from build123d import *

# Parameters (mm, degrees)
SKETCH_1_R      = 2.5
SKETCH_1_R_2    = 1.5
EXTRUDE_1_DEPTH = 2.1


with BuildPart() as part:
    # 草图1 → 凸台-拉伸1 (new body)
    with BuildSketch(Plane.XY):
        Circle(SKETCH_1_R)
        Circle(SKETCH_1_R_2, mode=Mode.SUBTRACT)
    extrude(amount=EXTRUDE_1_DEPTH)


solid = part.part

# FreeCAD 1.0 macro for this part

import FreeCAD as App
import Part
import Sketcher

V = App.Vector

doc = App.newDocument("Part")
body = doc.addObject("PartDesign::Body", "Body")

sketch1 = body.newObject("Sketcher::SketchObject", "Sketch")
sketch1.AttachmentSupport = (doc.getObject("XY_Plane"), [""])
sketch1.MapMode = "FlatFace"
sketch1.addGeometry([
    Part.Circle(V(0, 0, 0), V(0, 0, 1), 2.5),
    Part.Circle(V(0, 0, 0), V(0, 0, 1), 1.5),
], False)
sketch1.addConstraint([
    Sketcher.Constraint("Coincident", 0, 3, -1, 1),
    Sketcher.Constraint("Coincident", 1, 3, -1, 1),
    Sketcher.Constraint("Diameter", 0, 5.0),
    Sketcher.Constraint("Diameter", 1, 3.0),
])
pad1 = body.newObject("PartDesign::Pad", "Pad")
pad1.Profile = sketch1
pad1.Length = 2.1

doc.recompute()
